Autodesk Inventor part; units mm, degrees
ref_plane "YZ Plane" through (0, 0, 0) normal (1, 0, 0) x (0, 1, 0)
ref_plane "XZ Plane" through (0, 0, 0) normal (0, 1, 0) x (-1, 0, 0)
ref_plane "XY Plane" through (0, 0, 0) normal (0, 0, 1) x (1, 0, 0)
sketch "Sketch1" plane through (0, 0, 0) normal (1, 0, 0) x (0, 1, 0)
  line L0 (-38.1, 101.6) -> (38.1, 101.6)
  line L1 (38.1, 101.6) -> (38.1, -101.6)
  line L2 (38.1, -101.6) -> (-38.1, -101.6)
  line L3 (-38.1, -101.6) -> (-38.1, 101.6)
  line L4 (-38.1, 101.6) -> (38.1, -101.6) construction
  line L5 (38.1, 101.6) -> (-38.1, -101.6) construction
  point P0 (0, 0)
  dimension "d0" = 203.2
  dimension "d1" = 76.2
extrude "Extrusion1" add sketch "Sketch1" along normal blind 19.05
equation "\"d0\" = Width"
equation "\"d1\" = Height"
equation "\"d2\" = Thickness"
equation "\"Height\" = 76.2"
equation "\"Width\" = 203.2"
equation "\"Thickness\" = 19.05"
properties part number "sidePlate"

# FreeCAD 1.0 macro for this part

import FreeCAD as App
import Part
import Sketcher
from FreeCAD import Vector
Q = App.Units.Quantity


def add_polygon(sketch, points):
    """Adds a closed chain of lines whose ends are joined by coincident constraints."""
    first, n = sketch.GeometryCount, len(points)
    for a, b in zip(points, points[1:] + points[:1]):
        sketch.addGeometry(Part.LineSegment(App.Vector(*a, 0), App.Vector(*b, 0)), False)
    for i in range(n):
        sketch.addConstraint(Sketcher.Constraint("Coincident", first + i, 2, first + (i + 1) % n, 1))

doc = App.newDocument("Part")
body = doc.addObject("PartDesign::Body", "Body")

# Sketch on YZ plane
sketch1 = body.newObject("Sketcher::SketchObject", "Sketch")
sketch1.AttachmentSupport = (doc.getObject("YZ_Plane"), [""])
sketch1.MapMode = "FlatFace"
add_polygon(sketch1, [(38.1, 101.6), (-38.1, 101.6), (-38.1, -101.6), (38.1, -101.6)])  # lines 0-3
sketch1.addConstraint(Sketcher.Constraint("Horizontal", 0))
sketch1.addConstraint(Sketcher.Constraint("Vertical", 1))
sketch1.addConstraint(Sketcher.Constraint("Horizontal", 2))
sketch1.addConstraint(Sketcher.Constraint("Vertical", 3))
sketch1.addConstraint(Sketcher.Constraint("Symmetric", 0, 2, 2, 2, -1, 1))
sketch1.addConstraint(Sketcher.Constraint("DistanceX", 0, 2, 0, 1, Q("3 in")))
sketch1.addConstraint(Sketcher.Constraint("DistanceY", 1, 2, 1, 1, Q("8 in")))
pad1 = body.newObject("PartDesign::Pad", "Pad")
pad1.Profile = sketch1
pad1.Length = Q("0.75 in")

doc.recompute()
